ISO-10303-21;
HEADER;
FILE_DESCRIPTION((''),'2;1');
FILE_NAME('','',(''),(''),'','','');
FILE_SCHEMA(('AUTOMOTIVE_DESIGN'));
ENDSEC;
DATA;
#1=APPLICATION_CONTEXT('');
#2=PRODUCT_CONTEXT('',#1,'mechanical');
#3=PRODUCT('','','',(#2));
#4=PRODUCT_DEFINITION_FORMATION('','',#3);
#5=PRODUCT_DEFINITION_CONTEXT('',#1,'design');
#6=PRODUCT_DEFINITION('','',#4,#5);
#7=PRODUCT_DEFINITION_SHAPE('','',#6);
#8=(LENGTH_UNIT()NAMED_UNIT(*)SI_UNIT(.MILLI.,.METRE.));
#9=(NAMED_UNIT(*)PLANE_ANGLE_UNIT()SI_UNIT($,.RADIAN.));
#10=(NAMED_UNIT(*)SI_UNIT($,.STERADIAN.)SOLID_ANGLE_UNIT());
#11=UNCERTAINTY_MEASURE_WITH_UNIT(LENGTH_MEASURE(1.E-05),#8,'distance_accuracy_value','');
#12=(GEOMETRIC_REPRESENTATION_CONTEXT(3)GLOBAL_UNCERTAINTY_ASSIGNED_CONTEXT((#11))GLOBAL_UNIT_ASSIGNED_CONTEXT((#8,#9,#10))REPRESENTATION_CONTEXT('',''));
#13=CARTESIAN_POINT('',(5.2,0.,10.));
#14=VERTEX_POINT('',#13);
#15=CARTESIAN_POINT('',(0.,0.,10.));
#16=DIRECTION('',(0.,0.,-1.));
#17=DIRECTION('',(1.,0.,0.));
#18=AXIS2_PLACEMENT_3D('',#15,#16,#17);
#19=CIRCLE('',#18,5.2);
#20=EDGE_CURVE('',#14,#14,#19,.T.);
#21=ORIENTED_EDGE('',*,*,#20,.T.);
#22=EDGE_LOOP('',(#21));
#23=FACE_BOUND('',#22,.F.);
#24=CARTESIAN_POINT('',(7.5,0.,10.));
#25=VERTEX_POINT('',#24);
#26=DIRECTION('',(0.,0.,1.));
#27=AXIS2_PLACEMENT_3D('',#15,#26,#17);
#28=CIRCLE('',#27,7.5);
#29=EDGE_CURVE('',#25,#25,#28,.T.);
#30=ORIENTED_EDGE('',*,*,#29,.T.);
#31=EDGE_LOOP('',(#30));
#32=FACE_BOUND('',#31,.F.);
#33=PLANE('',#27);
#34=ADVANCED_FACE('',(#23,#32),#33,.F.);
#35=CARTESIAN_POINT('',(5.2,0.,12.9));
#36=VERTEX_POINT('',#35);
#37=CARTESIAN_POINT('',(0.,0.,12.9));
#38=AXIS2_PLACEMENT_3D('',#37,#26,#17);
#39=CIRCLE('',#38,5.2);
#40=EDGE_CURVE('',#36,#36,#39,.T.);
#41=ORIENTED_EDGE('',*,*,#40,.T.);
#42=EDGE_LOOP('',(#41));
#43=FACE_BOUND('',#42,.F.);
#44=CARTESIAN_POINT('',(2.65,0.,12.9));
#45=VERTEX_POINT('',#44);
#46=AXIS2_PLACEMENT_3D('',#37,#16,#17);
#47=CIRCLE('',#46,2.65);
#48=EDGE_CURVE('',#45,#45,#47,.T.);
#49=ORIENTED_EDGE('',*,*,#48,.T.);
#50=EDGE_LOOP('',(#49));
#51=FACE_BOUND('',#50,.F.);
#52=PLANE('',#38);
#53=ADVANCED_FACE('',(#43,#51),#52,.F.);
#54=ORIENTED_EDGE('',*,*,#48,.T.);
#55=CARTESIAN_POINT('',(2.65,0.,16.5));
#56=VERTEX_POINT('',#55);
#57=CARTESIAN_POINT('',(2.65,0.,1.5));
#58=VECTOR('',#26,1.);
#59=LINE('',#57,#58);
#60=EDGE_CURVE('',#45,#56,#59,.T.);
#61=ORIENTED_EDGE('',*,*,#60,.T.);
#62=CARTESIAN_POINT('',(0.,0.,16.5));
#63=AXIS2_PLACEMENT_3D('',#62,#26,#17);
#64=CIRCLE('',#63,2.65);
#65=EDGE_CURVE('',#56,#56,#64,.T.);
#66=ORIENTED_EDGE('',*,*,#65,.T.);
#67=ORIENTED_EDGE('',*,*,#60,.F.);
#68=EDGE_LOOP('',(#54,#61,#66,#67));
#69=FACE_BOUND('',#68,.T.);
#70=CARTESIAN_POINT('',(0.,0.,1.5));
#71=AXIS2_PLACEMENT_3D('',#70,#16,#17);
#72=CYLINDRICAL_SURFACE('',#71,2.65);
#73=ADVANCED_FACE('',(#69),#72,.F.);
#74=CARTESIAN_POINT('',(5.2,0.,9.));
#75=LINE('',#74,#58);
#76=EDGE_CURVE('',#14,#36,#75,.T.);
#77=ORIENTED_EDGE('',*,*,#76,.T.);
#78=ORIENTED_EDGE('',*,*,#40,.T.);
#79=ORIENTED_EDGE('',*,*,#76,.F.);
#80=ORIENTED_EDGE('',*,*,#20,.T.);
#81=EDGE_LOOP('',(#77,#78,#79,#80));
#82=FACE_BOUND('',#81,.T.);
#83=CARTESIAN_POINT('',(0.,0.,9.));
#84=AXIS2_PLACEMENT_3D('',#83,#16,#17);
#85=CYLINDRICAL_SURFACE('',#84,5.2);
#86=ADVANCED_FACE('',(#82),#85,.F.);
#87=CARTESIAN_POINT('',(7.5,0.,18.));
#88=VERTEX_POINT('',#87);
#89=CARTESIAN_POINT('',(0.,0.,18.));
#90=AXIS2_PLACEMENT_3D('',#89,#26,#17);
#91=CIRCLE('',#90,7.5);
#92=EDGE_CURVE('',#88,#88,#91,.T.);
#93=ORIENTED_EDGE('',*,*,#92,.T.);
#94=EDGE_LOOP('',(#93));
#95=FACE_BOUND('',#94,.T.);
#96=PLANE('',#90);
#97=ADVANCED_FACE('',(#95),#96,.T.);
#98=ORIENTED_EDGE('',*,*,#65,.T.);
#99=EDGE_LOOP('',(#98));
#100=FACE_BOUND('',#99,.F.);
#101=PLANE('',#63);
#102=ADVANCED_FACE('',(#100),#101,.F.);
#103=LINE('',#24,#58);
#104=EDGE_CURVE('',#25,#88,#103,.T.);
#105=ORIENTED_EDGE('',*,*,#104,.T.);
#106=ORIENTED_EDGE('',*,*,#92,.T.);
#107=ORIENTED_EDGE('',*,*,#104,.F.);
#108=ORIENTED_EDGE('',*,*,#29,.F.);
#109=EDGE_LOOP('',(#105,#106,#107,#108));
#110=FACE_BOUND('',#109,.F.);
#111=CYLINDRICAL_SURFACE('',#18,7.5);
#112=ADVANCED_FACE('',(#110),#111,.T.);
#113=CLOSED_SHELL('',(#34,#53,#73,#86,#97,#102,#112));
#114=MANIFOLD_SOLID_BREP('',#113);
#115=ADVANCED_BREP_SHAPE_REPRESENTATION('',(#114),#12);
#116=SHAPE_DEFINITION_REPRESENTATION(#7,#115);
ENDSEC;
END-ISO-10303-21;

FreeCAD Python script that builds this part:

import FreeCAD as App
import Part
import Sketcher

V = App.Vector

doc = App.newDocument("Part")
body = doc.addObject("PartDesign::Body", "Body")

# Sketch on XY plane
sketch1 = doc.addObject("Sketcher::SketchObject", "Sketch")
body.addObject(sketch1)
sketch1.AttachmentSupport = (doc.XY_Plane, [""])
sketch1.MapMode = "FlatFace"
sketch1.AttachmentOffset = App.Placement(V(0, 0, 9), App.Rotation())
sketch1.addGeometry(Part.Circle(V(0, 0, 0), V(0, 0, 1), 5.2), False)
sketch1.addGeometry(Part.Circle(V(0, 0, 0), V(0, 0, 1), 2.5), False)
sketch1.addConstraint(Sketcher.Constraint("Coincident", 0, 3, -1, 1))
sketch1.addConstraint(Sketcher.Constraint("Coincident", 1, 3, -1, 1))
sketch1.addConstraint(Sketcher.Constraint("Diameter", 1, 5.0))
sketch1.addConstraint(Sketcher.Constraint("Diameter", 0, 10.4))
pad1 = doc.addObject("PartDesign::Pad", "Pad")
body.addObject(pad1)
pad1.Profile = sketch1
pad1.Length = 3.9
body2 = doc.addObject("PartDesign::Body", "Body001")
doc.recompute()

body.Placement = App.Placement(V(0, 0, -9), App.Rotation(V(0, 0, 1), 0))
boolean = doc.addObject("PartDesign::Boolean", "Boolean")
body2.addObject(boolean)
boolean.Type = "Fuse"
boolean.addObjects([body])
body3 = doc.addObject("PartDesign::Body", "Body002")
doc.recompute()

body2.Placement = App.Placement(V(0, 0, 9), App.Rotation(V(0, 0, 1), 0))
boolean2 = doc.addObject("PartDesign::Boolean", "Boolean001")
body3.addObject(boolean2)
boolean2.Type = "Fuse"
boolean2.addObjects([body2])
body4 = doc.addObject("PartDesign::Body", "Body003")

# Sketch on XY plane
sketch2 = doc.addObject("Sketcher::SketchObject", "Sketch001")
body4.addObject(sketch2)
sketch2.AttachmentSupport = (doc.getObject("XY_Plane003"), [""])
sketch2.MapMode = "FlatFace"
sketch2.AttachmentOffset = App.Placement(V(0, 0, 1.5), App.Rotation())
sketch2.addGeometry(Part.Circle(V(0, 0, 0), V(0, 0, 1), 2.65), False)
sketch2.addConstraint(Sketcher.Constraint("Coincident", 0, 3, -1, 1))
sketch2.addConstraint(Sketcher.Constraint("Diameter", 0, 5.3))
pad2 = doc.addObject("PartDesign::Pad", "Pad001")
body4.addObject(pad2)
pad2.Profile = sketch2
pad2.Length = 15
body5 = doc.addObject("PartDesign::Body", "Body004")
doc.recompute()

body4.Placement = App.Placement(V(0, 0, -1.5), App.Rotation(V(0, 0, 1), 0))
boolean3 = doc.addObject("PartDesign::Boolean", "Boolean002")
body5.addObject(boolean3)
boolean3.Type = "Fuse"
boolean3.addObjects([body4])
body6 = doc.addObject("PartDesign::Body", "Body005")
doc.recompute()

body5.Placement = App.Placement(V(0, 0, 1.5), App.Rotation(V(0, 0, 1), 0))
boolean4 = doc.addObject("PartDesign::Boolean", "Boolean003")
body6.addObject(boolean4)
boolean4.Type = "Fuse"
boolean4.addObjects([body5])
doc.recompute()

boolean5 = doc.addObject("PartDesign::Boolean", "Boolean004")
body6.addObject(boolean5)
boolean5.Type = "Fuse"
boolean5.addObjects([body3])
body7 = doc.addObject("PartDesign::Body", "Body006")

# Sketch on XY plane
sketch3 = doc.addObject("Sketcher::SketchObject", "Sketch002")
body7.addObject(sketch3)
sketch3.AttachmentSupport = (doc.getObject("XY_Plane006"), [""])
sketch3.MapMode = "FlatFace"
sketch3.addGeometry(Part.Circle(V(0, 0, 0), V(0, 0, 1), 7.5), False)
sketch3.addConstraint(Sketcher.Constraint("Coincident", 0, 3, -1, 1))
sketch3.addConstraint(Sketcher.Constraint("Diameter", 0, 15.0))
pad3 = doc.addObject("PartDesign::Pad", "Pad002")
body7.addObject(pad3)
pad3.Profile = sketch3
pad3.Length = 8
body8 = doc.addObject("PartDesign::Body", "Body007")
doc.recompute()

body7.Placement = App.Placement(V(0, 0, 10), App.Rotation(V(0, 0, 1), 0))
boolean6 = doc.addObject("PartDesign::Boolean", "Boolean005")
body8.addObject(boolean6)
boolean6.Type = "Fuse"
boolean6.addObjects([body7])
doc.recompute()

boolean7 = doc.addObject("PartDesign::Boolean", "Boolean006")
body8.addObject(boolean7)
boolean7.Type = "Cut"
boolean7.addObjects([body6])

doc.recompute()
